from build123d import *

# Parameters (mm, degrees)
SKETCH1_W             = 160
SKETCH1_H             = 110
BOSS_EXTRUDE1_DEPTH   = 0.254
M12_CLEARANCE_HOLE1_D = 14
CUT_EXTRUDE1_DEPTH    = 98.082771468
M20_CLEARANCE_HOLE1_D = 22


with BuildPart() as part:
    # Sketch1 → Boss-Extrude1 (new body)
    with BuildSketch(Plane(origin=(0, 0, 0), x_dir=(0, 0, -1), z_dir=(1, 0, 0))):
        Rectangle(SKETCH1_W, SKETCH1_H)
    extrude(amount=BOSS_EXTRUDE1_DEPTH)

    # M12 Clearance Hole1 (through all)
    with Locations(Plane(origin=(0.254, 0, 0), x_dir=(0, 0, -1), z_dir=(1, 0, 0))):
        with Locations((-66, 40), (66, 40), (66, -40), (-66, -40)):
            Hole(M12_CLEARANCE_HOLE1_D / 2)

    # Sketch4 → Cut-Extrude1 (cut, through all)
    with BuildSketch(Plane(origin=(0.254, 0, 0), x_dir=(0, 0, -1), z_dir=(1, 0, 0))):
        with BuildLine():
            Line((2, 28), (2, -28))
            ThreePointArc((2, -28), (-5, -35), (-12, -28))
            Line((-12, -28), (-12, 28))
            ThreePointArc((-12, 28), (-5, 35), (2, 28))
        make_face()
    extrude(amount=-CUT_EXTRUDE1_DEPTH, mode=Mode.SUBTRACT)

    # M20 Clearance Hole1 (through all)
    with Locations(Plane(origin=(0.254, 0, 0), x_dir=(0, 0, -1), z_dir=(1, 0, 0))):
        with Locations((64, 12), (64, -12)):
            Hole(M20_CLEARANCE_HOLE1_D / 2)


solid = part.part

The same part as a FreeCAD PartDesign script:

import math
import FreeCAD as App
import Part
import Sketcher


def add_polygon(sketch, points):
    """Adds a closed chain of lines whose ends are joined by coincident constraints."""
    first, n = sketch.GeometryCount, len(points)
    for a, b in zip(points, points[1:] + points[:1]):
        sketch.addGeometry(Part.LineSegment(App.Vector(*a, 0), App.Vector(*b, 0)), False)
    for i in range(n):
        sketch.addConstraint(Sketcher.Constraint("Coincident", first + i, 2, first + (i + 1) % n, 1))

doc = App.newDocument("Part")
body = doc.addObject("PartDesign::Body", "Body")

# Sketch on YZ plane
sketch1 = body.newObject("Sketcher::SketchObject", "Sketch")
sketch1.AttachmentSupport = (doc.getObject("YZ_Plane"), [""])
sketch1.MapMode = "FlatFace"
add_polygon(sketch1, [(55, 80), (-55, 80), (-55, -80), (55, -80)])  # lines 0-3
sketch1.addConstraint([
    Sketcher.Constraint("Horizontal", 0),
    Sketcher.Constraint("Vertical", 1),
    Sketcher.Constraint("Horizontal", 2),
    Sketcher.Constraint("Vertical", 3),
    Sketcher.Constraint("Symmetric", 0, 2, 2, 2, -1, 1),
    Sketcher.Constraint("DistanceX", 0, 2, 0, 1, 110.0),
    Sketcher.Constraint("DistanceY", 1, 2, 1, 1, 160.0),
])
pad1 = body.newObject("PartDesign::Pad", "Pad")
pad1.Profile = sketch1
pad1.Length = 0.254

# Sketch on YZ plane
sketch2 = body.newObject("Sketcher::SketchObject", "Sketch001")
sketch2.AttachmentSupport = (doc.getObject("YZ_Plane"), [""])
sketch2.MapMode = "FlatFace"
sketch2.AttachmentOffset = App.Placement(App.Vector(0, 0, 0.254), App.Rotation())
sketch2.addGeometry([
    Part.Circle(App.Vector(40, 66, 0), App.Vector(0, 0, 1), 7),
    Part.Circle(App.Vector(40, -66, 0), App.Vector(0, 0, 1), 7),
    Part.Circle(App.Vector(-40, -66, 0), App.Vector(0, 0, 1), 7),
    Part.Circle(App.Vector(-40, 66, 0), App.Vector(0, 0, 1), 7),
], False)
sketch2.addConstraint([
    Sketcher.Constraint("Equal", 0, 1),
    Sketcher.Constraint("Equal", 1, 2),
    Sketcher.Constraint("Equal", 2, 3),
    Sketcher.Constraint("Symmetric", 0, 3, 2, 3, -1, 1),
    Sketcher.Constraint("Symmetric", 1, 3, 3, 3, -1, 1),
    Sketcher.Constraint("Symmetric", 1, 3, 2, 3, -2),
    Sketcher.Constraint("Diameter", 0, 14.0),
    Sketcher.Constraint("DistanceX", -1, 1, 0, 3, 40.0),
    Sketcher.Constraint("DistanceY", -1, 1, 0, 3, 66.0),
])
doc.recompute()
hole = body.newObject("PartDesign::Hole", "Hole")
hole.Profile = sketch2
hole.ThreadType = "None"
hole.Diameter = 14
hole.DepthType = "ThroughAll"

# Sketch on YZ plane
sketch3 = body.newObject("Sketcher::SketchObject", "Sketch002")
sketch3.AttachmentSupport = (doc.getObject("YZ_Plane"), [""])
sketch3.MapMode = "FlatFace"
sketch3.AttachmentOffset = App.Placement(App.Vector(0, 0, 0.254), App.Rotation())
sketch3.addGeometry([
    Part.LineSegment(App.Vector(-28, -2, 0), App.Vector(28, -2, 0)),
    Part.ArcOfCircle(Part.Circle(App.Vector(28, 5, 0), App.Vector(0, 0, 1), 7), math.radians(-90), math.radians(90)),
    Part.LineSegment(App.Vector(28, 12, 0), App.Vector(-28, 12, 0)),
    Part.ArcOfCircle(Part.Circle(App.Vector(-28, 5, 0), App.Vector(0, 0, 1), 7), math.radians(90), math.radians(270)),
], False)
sketch3.addConstraint([
    Sketcher.Constraint("Tangent", 0, 2, 1, 1),
    Sketcher.Constraint("Tangent", 1, 2, 2, 1),
    Sketcher.Constraint("Tangent", 2, 2, 3, 1),
    Sketcher.Constraint("Tangent", 3, 2, 0, 1),
    Sketcher.Constraint("Horizontal", 0),
    Sketcher.Constraint("Horizontal", 2),
    Sketcher.Constraint("Radius", 1, 7.0),
    Sketcher.Constraint("DistanceX", 0, 1, 0, 2, 56.0),
    Sketcher.Constraint("DistanceX", -1, 1, 1, 3, 28.0),
    Sketcher.Constraint("DistanceY", -1, 1, 1, 3, 5.0),
])
pocket1 = body.newObject("PartDesign::Pocket", "Pocket")
pocket1.Profile = sketch3
pocket1.Type = "ThroughAll"

# Sketch on YZ plane
sketch4 = body.newObject("Sketcher::SketchObject", "Sketch003")
sketch4.AttachmentSupport = (doc.getObject("YZ_Plane"), [""])
sketch4.MapMode = "FlatFace"
sketch4.AttachmentOffset = App.Placement(App.Vector(0, 0, 0.254), App.Rotation())
sketch4.addGeometry([
    Part.Circle(App.Vector(12, -64, 0), App.Vector(0, 0, 1), 11),
    Part.Circle(App.Vector(-12, -64, 0), App.Vector(0, 0, 1), 11),
], False)
sketch4.addConstraint([
    Sketcher.Constraint("Equal", 0, 1),
    Sketcher.Constraint("Symmetric", 0, 3, 1, 3, -2),
    Sketcher.Constraint("Diameter", 0, 22.0),
    Sketcher.Constraint("DistanceX", -1, 1, 0, 3, 12.0),
    Sketcher.Constraint("DistanceY", 0, 3, -1, 1, 64.0),
])
doc.recompute()
hole2 = body.newObject("PartDesign::Hole", "Hole001")
hole2.Profile = sketch4
hole2.ThreadType = "None"
hole2.Diameter = 22
hole2.DepthType = "ThroughAll"

doc.recompute()
